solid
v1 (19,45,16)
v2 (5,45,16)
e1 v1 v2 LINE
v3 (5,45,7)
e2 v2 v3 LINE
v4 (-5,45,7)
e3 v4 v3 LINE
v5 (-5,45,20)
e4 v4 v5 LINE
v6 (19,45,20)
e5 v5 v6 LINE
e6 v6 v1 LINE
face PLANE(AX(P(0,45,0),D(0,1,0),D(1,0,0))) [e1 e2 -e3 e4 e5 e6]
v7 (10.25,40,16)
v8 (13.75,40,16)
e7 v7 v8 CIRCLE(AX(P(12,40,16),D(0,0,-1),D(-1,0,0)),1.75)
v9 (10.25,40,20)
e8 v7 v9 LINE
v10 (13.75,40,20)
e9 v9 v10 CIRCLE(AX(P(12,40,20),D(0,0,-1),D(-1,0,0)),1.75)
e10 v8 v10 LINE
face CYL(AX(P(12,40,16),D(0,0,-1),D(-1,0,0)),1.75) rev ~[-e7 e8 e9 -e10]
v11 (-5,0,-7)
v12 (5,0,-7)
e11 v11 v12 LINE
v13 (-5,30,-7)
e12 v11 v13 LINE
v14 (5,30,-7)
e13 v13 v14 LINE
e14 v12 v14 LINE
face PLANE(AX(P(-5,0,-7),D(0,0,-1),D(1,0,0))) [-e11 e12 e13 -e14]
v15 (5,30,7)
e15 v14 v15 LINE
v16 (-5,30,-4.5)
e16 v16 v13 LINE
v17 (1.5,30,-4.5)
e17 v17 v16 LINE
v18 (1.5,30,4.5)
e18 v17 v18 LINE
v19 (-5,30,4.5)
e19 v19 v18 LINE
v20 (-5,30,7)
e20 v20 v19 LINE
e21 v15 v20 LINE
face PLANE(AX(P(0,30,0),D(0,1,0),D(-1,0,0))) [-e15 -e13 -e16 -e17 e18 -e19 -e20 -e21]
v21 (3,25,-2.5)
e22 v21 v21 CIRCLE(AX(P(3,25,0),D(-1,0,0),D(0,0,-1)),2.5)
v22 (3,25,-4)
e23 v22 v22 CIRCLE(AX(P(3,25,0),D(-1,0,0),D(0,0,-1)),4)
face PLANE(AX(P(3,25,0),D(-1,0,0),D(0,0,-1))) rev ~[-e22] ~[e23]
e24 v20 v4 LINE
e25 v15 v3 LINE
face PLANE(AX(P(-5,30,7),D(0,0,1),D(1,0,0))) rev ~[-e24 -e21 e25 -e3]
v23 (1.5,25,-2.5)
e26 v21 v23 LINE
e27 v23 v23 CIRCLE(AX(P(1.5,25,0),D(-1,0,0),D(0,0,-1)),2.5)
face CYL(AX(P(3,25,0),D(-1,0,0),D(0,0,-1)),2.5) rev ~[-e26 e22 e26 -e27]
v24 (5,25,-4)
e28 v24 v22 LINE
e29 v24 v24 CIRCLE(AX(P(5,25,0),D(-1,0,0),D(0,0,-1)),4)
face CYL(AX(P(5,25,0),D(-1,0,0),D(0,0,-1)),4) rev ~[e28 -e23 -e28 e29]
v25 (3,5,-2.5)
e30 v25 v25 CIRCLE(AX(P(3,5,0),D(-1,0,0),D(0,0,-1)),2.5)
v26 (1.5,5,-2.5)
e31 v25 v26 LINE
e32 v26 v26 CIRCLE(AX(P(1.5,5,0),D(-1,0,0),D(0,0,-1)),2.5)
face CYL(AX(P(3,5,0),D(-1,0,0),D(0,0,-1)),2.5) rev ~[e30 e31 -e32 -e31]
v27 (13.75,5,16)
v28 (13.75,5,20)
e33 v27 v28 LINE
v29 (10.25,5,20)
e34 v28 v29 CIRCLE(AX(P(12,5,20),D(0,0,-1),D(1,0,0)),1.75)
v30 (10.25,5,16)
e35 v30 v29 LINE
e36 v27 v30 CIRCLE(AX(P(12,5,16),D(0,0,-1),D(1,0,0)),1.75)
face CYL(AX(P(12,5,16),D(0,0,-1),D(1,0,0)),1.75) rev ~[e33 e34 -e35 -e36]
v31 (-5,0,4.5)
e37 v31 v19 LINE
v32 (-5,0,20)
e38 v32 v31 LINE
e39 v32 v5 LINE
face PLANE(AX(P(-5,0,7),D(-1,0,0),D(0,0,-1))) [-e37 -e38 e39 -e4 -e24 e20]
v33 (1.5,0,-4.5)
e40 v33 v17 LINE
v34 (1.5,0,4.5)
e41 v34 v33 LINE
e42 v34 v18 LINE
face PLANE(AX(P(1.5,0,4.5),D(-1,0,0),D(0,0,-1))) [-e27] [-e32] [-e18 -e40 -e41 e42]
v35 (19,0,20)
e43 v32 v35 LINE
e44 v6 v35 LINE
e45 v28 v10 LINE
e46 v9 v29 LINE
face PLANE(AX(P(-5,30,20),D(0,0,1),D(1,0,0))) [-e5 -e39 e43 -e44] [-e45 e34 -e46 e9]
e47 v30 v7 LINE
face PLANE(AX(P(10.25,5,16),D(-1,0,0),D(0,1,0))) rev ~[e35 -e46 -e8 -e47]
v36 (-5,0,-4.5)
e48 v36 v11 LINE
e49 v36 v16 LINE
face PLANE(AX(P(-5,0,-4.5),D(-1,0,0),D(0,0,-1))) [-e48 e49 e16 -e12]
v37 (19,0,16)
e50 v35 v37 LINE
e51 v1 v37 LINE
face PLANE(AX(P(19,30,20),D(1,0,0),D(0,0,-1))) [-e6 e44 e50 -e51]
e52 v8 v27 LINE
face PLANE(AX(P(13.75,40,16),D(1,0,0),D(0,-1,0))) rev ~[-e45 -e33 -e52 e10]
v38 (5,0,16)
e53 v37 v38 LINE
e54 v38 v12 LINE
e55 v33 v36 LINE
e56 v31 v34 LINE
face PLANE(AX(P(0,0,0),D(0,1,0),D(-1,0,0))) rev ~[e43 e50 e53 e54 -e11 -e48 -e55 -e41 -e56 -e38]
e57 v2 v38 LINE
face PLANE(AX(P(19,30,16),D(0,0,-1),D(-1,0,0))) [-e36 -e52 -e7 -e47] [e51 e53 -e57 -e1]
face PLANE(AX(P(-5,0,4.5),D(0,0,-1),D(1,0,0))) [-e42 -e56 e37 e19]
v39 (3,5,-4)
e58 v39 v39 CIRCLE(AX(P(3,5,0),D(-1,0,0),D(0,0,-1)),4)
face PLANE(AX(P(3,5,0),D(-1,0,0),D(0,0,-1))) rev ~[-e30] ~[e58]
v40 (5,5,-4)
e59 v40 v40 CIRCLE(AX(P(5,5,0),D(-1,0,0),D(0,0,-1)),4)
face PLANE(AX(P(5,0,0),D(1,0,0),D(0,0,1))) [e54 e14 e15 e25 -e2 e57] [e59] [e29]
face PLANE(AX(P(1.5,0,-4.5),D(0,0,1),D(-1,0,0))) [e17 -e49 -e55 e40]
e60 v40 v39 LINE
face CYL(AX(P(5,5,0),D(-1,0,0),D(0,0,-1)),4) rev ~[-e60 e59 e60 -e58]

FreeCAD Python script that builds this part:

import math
import FreeCAD as App
import Part
import Sketcher

V = App.Vector
Q = App.Units.Quantity

doc = App.newDocument("Part")
body = doc.addObject("PartDesign::Body", "Body")

# Sketch on XZ plane
sketch1 = body.newObject("Sketcher::SketchObject", "Sketch")
sketch1.AttachmentSupport = (doc.getObject("XZ_Plane"), [""])
sketch1.MapMode = "FlatFace"
sketch1.addGeometry(Part.LineSegment(V(-5, 7, 0), V(5, 7, 0)), False)
sketch1.addGeometry(Part.LineSegment(V(5, 7, 0), V(5, -7, 0)), False)
sketch1.addGeometry(Part.LineSegment(V(5, -7, 0), V(-5, -7, 0)), False)
sketch1.addGeometry(Part.LineSegment(V(-5, -7, 0), V(-5, -4.5, 0)), False)
sketch1.addGeometry(Part.LineSegment(V(-5, -4.5, 0), V(1.5, -4.5, 0)), False)
sketch1.addGeometry(Part.LineSegment(V(1.5, -4.5, 0), V(1.5, 4.5, 0)), False)
sketch1.addGeometry(Part.LineSegment(V(1.5, 4.5, 0), V(-5, 4.5, 0)), False)
sketch1.addGeometry(Part.LineSegment(V(-5, 4.5, 0), V(-5, 7, 0)), False)
sketch1.addConstraint(Sketcher.Constraint("Coincident", 0, 2, 1, 1))
sketch1.addConstraint(Sketcher.Constraint("Coincident", 1, 2, 2, 1))
sketch1.addConstraint(Sketcher.Constraint("Coincident", 2, 2, 3, 1))
sketch1.addConstraint(Sketcher.Constraint("Coincident", 3, 2, 4, 1))
sketch1.addConstraint(Sketcher.Constraint("Coincident", 4, 2, 5, 1))
sketch1.addConstraint(Sketcher.Constraint("Coincident", 5, 2, 6, 1))
sketch1.addConstraint(Sketcher.Constraint("Coincident", 6, 2, 7, 1))
sketch1.addConstraint(Sketcher.Constraint("Coincident", 7, 2, 0, 1))
sketch1.addConstraint(Sketcher.Constraint("Horizontal", 0))
sketch1.addConstraint(Sketcher.Constraint("Vertical", 1))
sketch1.addConstraint(Sketcher.Constraint("Horizontal", 2))
sketch1.addConstraint(Sketcher.Constraint("Vertical", 3))
sketch1.addConstraint(Sketcher.Constraint("Horizontal", 4))
sketch1.addConstraint(Sketcher.Constraint("Vertical", 5))
sketch1.addConstraint(Sketcher.Constraint("Horizontal", 6))
sketch1.addConstraint(Sketcher.Constraint("Vertical", 7))
sketch1.addConstraint(Sketcher.Constraint("Symmetric", 0, 2, 2, 2, -1, 1))
sketch1.addConstraint(Sketcher.Constraint("Symmetric", 3, 2, 6, 2, -1))
sketch1.addConstraint(Sketcher.Constraint("DistanceX", 0, 1, 0, 2, Q("10 mm")))
sketch1.addConstraint(Sketcher.Constraint("DistanceY", 1, 2, 1, 1, Q("14 mm")))
sketch1.addConstraint(Sketcher.Constraint("DistanceY", 5, 1, 5, 2, Q("9 mm")))
sketch1.addConstraint(Sketcher.Constraint("DistanceX", 4, 1, 4, 2, Q("6.5 mm")))
pad1 = body.newObject("PartDesign::Pad", "Pad")
pad1.Profile = sketch1
pad1.Length = 30
pad1.Reversed = True

# Sketch on YZ plane
sketch2 = body.newObject("Sketcher::SketchObject", "Sketch001")
sketch2.AttachmentSupport = (doc.getObject("YZ_Plane"), [""])
sketch2.MapMode = "FlatFace"
sketch2.AttachmentOffset = App.Placement(V(0, 0, 5), App.Rotation())
sketch2.addGeometry(Part.Circle(V(25, 0, 0), V(0, 0, 1), 2.5), False)
sketch2.addGeometry(Part.Circle(V(5, 0, 0), V(0, 0, 1), 2.5), False)
sketch2.addConstraint(Sketcher.Constraint("Equal", 0, 1))
sketch2.addConstraint(Sketcher.Constraint("PointOnObject", 0, 3, -1))
sketch2.addConstraint(Sketcher.Constraint("PointOnObject", 1, 3, -1))
sketch2.addConstraint(Sketcher.Constraint("Diameter", 0, Q("5 mm")))
sketch2.addConstraint(Sketcher.Constraint("DistanceX", -1, 1, 0, 3, Q("25 mm")))
sketch2.addConstraint(Sketcher.Constraint("DistanceX", -1, 1, 1, 3, Q("5 mm")))
doc.recompute()
hole = body.newObject("PartDesign::Hole", "Hole")
hole.Profile = sketch2
hole.ThreadType = "None"
hole.Diameter = 5
hole.DepthType = "ThroughAll"
hole.HoleCutType = "Counterbore"
hole.HoleCutDiameter = 8
hole.HoleCutDepth = 2

# Sketch on XZ plane
sketch3 = body.newObject("Sketcher::SketchObject", "Sketch002")
sketch3.AttachmentSupport = (doc.getObject("XZ_Plane"), [""])
sketch3.MapMode = "FlatFace"
sketch3.AttachmentOffset = App.Placement(V(0, 0, -30), App.Rotation())
sketch3.addGeometry(Part.LineSegment(V(5, 16, 0), V(5, 7, 0)), False)
sketch3.addGeometry(Part.LineSegment(V(5, 7, 0), V(-5, 7, 0)), False)
sketch3.addGeometry(Part.LineSegment(V(-5, 7, 0), V(-5, 20, 0)), False)
sketch3.addGeometry(Part.LineSegment(V(-5, 20, 0), V(19, 20, 0)), False)
sketch3.addGeometry(Part.LineSegment(V(19, 20, 0), V(19, 16, 0)), False)
sketch3.addGeometry(Part.LineSegment(V(19, 16, 0), V(5, 16, 0)), False)
sketch3.addConstraint(Sketcher.Constraint("Coincident", 0, 2, 1, 1))
sketch3.addConstraint(Sketcher.Constraint("Coincident", 1, 2, 2, 1))
sketch3.addConstraint(Sketcher.Constraint("Coincident", 2, 2, 3, 1))
sketch3.addConstraint(Sketcher.Constraint("Coincident", 3, 2, 4, 1))
sketch3.addConstraint(Sketcher.Constraint("Coincident", 4, 2, 5, 1))
sketch3.addConstraint(Sketcher.Constraint("Coincident", 5, 2, 0, 1))
sketch3.addConstraint(Sketcher.Constraint("Vertical", 0))
sketch3.addConstraint(Sketcher.Constraint("Horizontal", 1))
sketch3.addConstraint(Sketcher.Constraint("Vertical", 2))
sketch3.addConstraint(Sketcher.Constraint("Horizontal", 3))
sketch3.addConstraint(Sketcher.Constraint("Vertical", 4))
sketch3.addConstraint(Sketcher.Constraint("Horizontal", 5))
sketch3.addConstraint(Sketcher.Constraint("DistanceX", 5, 2, 5, 1, Q("14 mm")))
sketch3.addConstraint(Sketcher.Constraint("DistanceY", 4, 2, 4, 1, Q("4 mm")))
sketch3.addConstraint(Sketcher.Constraint("DistanceY", -1, 1, 2, 2, Q("20 mm")))
sketch3.addConstraint(Sketcher.Constraint("DistanceX", 1, 2, 1, 1, Q("10 mm")))
sketch3.addConstraint(Sketcher.Constraint("DistanceY", 0, 2, 0, 1, Q("9 mm")))
sketch3.addConstraint(Sketcher.Constraint("DistanceX", -1, 1, 0, 2, Q("5 mm")))
pad2 = body.newObject("PartDesign::Pad", "Pad001")
pad2.Profile = sketch3
pad2.Type = "TwoLengths"
pad2.Length = 30
pad2.Length2 = 15

# Sketch on XY plane
sketch4 = body.newObject("Sketcher::SketchObject", "Sketch003")
sketch4.AttachmentSupport = (doc.getObject("XY_Plane"), [""])
sketch4.MapMode = "FlatFace"
sketch4.AttachmentOffset = App.Placement(V(0, 0, 16), App.Rotation())
sketch4.addGeometry(Part.ArcOfCircle(Part.Circle(V(12, 40, 0), V(0, 0, 1), 1.75), math.radians(0), math.radians(180)), False)
sketch4.addGeometry(Part.LineSegment(V(13.75, 40, 0), V(13.75, 5, 0)), False)
sketch4.addGeometry(Part.ArcOfCircle(Part.Circle(V(12, 5, 0), V(0, 0, 1), 1.75), math.radians(180), math.radians(360)), False)
sketch4.addGeometry(Part.LineSegment(V(10.25, 5, 0), V(10.25, 40, 0)), False)
sketch4.addConstraint(Sketcher.Constraint("Tangent", 0, 1, 1, 1))
sketch4.addConstraint(Sketcher.Constraint("Tangent", 1, 2, 2, 2))
sketch4.addConstraint(Sketcher.Constraint("Tangent", 2, 1, 3, 1))
sketch4.addConstraint(Sketcher.Constraint("Tangent", 3, 2, 0, 2))
sketch4.addConstraint(Sketcher.Constraint("Vertical", 1))
sketch4.addConstraint(Sketcher.Constraint("Vertical", 3))
sketch4.addConstraint(Sketcher.Constraint("Radius", 0, Q("1.75 mm")))
sketch4.addConstraint(Sketcher.Constraint("DistanceY", -1, 1, 2, 3, Q("5 mm")))
sketch4.addConstraint(Sketcher.Constraint("DistanceY", 1, 2, 1, 1, Q("35 mm")))
sketch4.addConstraint(Sketcher.Constraint("DistanceX", -1, 1, 0, 3, Q("12 mm")))
pocket1 = body.newObject("PartDesign::Pocket", "Pocket")
pocket1.Profile = sketch4
pocket1.Length = 30
pocket1.Reversed = True

doc.recompute()
